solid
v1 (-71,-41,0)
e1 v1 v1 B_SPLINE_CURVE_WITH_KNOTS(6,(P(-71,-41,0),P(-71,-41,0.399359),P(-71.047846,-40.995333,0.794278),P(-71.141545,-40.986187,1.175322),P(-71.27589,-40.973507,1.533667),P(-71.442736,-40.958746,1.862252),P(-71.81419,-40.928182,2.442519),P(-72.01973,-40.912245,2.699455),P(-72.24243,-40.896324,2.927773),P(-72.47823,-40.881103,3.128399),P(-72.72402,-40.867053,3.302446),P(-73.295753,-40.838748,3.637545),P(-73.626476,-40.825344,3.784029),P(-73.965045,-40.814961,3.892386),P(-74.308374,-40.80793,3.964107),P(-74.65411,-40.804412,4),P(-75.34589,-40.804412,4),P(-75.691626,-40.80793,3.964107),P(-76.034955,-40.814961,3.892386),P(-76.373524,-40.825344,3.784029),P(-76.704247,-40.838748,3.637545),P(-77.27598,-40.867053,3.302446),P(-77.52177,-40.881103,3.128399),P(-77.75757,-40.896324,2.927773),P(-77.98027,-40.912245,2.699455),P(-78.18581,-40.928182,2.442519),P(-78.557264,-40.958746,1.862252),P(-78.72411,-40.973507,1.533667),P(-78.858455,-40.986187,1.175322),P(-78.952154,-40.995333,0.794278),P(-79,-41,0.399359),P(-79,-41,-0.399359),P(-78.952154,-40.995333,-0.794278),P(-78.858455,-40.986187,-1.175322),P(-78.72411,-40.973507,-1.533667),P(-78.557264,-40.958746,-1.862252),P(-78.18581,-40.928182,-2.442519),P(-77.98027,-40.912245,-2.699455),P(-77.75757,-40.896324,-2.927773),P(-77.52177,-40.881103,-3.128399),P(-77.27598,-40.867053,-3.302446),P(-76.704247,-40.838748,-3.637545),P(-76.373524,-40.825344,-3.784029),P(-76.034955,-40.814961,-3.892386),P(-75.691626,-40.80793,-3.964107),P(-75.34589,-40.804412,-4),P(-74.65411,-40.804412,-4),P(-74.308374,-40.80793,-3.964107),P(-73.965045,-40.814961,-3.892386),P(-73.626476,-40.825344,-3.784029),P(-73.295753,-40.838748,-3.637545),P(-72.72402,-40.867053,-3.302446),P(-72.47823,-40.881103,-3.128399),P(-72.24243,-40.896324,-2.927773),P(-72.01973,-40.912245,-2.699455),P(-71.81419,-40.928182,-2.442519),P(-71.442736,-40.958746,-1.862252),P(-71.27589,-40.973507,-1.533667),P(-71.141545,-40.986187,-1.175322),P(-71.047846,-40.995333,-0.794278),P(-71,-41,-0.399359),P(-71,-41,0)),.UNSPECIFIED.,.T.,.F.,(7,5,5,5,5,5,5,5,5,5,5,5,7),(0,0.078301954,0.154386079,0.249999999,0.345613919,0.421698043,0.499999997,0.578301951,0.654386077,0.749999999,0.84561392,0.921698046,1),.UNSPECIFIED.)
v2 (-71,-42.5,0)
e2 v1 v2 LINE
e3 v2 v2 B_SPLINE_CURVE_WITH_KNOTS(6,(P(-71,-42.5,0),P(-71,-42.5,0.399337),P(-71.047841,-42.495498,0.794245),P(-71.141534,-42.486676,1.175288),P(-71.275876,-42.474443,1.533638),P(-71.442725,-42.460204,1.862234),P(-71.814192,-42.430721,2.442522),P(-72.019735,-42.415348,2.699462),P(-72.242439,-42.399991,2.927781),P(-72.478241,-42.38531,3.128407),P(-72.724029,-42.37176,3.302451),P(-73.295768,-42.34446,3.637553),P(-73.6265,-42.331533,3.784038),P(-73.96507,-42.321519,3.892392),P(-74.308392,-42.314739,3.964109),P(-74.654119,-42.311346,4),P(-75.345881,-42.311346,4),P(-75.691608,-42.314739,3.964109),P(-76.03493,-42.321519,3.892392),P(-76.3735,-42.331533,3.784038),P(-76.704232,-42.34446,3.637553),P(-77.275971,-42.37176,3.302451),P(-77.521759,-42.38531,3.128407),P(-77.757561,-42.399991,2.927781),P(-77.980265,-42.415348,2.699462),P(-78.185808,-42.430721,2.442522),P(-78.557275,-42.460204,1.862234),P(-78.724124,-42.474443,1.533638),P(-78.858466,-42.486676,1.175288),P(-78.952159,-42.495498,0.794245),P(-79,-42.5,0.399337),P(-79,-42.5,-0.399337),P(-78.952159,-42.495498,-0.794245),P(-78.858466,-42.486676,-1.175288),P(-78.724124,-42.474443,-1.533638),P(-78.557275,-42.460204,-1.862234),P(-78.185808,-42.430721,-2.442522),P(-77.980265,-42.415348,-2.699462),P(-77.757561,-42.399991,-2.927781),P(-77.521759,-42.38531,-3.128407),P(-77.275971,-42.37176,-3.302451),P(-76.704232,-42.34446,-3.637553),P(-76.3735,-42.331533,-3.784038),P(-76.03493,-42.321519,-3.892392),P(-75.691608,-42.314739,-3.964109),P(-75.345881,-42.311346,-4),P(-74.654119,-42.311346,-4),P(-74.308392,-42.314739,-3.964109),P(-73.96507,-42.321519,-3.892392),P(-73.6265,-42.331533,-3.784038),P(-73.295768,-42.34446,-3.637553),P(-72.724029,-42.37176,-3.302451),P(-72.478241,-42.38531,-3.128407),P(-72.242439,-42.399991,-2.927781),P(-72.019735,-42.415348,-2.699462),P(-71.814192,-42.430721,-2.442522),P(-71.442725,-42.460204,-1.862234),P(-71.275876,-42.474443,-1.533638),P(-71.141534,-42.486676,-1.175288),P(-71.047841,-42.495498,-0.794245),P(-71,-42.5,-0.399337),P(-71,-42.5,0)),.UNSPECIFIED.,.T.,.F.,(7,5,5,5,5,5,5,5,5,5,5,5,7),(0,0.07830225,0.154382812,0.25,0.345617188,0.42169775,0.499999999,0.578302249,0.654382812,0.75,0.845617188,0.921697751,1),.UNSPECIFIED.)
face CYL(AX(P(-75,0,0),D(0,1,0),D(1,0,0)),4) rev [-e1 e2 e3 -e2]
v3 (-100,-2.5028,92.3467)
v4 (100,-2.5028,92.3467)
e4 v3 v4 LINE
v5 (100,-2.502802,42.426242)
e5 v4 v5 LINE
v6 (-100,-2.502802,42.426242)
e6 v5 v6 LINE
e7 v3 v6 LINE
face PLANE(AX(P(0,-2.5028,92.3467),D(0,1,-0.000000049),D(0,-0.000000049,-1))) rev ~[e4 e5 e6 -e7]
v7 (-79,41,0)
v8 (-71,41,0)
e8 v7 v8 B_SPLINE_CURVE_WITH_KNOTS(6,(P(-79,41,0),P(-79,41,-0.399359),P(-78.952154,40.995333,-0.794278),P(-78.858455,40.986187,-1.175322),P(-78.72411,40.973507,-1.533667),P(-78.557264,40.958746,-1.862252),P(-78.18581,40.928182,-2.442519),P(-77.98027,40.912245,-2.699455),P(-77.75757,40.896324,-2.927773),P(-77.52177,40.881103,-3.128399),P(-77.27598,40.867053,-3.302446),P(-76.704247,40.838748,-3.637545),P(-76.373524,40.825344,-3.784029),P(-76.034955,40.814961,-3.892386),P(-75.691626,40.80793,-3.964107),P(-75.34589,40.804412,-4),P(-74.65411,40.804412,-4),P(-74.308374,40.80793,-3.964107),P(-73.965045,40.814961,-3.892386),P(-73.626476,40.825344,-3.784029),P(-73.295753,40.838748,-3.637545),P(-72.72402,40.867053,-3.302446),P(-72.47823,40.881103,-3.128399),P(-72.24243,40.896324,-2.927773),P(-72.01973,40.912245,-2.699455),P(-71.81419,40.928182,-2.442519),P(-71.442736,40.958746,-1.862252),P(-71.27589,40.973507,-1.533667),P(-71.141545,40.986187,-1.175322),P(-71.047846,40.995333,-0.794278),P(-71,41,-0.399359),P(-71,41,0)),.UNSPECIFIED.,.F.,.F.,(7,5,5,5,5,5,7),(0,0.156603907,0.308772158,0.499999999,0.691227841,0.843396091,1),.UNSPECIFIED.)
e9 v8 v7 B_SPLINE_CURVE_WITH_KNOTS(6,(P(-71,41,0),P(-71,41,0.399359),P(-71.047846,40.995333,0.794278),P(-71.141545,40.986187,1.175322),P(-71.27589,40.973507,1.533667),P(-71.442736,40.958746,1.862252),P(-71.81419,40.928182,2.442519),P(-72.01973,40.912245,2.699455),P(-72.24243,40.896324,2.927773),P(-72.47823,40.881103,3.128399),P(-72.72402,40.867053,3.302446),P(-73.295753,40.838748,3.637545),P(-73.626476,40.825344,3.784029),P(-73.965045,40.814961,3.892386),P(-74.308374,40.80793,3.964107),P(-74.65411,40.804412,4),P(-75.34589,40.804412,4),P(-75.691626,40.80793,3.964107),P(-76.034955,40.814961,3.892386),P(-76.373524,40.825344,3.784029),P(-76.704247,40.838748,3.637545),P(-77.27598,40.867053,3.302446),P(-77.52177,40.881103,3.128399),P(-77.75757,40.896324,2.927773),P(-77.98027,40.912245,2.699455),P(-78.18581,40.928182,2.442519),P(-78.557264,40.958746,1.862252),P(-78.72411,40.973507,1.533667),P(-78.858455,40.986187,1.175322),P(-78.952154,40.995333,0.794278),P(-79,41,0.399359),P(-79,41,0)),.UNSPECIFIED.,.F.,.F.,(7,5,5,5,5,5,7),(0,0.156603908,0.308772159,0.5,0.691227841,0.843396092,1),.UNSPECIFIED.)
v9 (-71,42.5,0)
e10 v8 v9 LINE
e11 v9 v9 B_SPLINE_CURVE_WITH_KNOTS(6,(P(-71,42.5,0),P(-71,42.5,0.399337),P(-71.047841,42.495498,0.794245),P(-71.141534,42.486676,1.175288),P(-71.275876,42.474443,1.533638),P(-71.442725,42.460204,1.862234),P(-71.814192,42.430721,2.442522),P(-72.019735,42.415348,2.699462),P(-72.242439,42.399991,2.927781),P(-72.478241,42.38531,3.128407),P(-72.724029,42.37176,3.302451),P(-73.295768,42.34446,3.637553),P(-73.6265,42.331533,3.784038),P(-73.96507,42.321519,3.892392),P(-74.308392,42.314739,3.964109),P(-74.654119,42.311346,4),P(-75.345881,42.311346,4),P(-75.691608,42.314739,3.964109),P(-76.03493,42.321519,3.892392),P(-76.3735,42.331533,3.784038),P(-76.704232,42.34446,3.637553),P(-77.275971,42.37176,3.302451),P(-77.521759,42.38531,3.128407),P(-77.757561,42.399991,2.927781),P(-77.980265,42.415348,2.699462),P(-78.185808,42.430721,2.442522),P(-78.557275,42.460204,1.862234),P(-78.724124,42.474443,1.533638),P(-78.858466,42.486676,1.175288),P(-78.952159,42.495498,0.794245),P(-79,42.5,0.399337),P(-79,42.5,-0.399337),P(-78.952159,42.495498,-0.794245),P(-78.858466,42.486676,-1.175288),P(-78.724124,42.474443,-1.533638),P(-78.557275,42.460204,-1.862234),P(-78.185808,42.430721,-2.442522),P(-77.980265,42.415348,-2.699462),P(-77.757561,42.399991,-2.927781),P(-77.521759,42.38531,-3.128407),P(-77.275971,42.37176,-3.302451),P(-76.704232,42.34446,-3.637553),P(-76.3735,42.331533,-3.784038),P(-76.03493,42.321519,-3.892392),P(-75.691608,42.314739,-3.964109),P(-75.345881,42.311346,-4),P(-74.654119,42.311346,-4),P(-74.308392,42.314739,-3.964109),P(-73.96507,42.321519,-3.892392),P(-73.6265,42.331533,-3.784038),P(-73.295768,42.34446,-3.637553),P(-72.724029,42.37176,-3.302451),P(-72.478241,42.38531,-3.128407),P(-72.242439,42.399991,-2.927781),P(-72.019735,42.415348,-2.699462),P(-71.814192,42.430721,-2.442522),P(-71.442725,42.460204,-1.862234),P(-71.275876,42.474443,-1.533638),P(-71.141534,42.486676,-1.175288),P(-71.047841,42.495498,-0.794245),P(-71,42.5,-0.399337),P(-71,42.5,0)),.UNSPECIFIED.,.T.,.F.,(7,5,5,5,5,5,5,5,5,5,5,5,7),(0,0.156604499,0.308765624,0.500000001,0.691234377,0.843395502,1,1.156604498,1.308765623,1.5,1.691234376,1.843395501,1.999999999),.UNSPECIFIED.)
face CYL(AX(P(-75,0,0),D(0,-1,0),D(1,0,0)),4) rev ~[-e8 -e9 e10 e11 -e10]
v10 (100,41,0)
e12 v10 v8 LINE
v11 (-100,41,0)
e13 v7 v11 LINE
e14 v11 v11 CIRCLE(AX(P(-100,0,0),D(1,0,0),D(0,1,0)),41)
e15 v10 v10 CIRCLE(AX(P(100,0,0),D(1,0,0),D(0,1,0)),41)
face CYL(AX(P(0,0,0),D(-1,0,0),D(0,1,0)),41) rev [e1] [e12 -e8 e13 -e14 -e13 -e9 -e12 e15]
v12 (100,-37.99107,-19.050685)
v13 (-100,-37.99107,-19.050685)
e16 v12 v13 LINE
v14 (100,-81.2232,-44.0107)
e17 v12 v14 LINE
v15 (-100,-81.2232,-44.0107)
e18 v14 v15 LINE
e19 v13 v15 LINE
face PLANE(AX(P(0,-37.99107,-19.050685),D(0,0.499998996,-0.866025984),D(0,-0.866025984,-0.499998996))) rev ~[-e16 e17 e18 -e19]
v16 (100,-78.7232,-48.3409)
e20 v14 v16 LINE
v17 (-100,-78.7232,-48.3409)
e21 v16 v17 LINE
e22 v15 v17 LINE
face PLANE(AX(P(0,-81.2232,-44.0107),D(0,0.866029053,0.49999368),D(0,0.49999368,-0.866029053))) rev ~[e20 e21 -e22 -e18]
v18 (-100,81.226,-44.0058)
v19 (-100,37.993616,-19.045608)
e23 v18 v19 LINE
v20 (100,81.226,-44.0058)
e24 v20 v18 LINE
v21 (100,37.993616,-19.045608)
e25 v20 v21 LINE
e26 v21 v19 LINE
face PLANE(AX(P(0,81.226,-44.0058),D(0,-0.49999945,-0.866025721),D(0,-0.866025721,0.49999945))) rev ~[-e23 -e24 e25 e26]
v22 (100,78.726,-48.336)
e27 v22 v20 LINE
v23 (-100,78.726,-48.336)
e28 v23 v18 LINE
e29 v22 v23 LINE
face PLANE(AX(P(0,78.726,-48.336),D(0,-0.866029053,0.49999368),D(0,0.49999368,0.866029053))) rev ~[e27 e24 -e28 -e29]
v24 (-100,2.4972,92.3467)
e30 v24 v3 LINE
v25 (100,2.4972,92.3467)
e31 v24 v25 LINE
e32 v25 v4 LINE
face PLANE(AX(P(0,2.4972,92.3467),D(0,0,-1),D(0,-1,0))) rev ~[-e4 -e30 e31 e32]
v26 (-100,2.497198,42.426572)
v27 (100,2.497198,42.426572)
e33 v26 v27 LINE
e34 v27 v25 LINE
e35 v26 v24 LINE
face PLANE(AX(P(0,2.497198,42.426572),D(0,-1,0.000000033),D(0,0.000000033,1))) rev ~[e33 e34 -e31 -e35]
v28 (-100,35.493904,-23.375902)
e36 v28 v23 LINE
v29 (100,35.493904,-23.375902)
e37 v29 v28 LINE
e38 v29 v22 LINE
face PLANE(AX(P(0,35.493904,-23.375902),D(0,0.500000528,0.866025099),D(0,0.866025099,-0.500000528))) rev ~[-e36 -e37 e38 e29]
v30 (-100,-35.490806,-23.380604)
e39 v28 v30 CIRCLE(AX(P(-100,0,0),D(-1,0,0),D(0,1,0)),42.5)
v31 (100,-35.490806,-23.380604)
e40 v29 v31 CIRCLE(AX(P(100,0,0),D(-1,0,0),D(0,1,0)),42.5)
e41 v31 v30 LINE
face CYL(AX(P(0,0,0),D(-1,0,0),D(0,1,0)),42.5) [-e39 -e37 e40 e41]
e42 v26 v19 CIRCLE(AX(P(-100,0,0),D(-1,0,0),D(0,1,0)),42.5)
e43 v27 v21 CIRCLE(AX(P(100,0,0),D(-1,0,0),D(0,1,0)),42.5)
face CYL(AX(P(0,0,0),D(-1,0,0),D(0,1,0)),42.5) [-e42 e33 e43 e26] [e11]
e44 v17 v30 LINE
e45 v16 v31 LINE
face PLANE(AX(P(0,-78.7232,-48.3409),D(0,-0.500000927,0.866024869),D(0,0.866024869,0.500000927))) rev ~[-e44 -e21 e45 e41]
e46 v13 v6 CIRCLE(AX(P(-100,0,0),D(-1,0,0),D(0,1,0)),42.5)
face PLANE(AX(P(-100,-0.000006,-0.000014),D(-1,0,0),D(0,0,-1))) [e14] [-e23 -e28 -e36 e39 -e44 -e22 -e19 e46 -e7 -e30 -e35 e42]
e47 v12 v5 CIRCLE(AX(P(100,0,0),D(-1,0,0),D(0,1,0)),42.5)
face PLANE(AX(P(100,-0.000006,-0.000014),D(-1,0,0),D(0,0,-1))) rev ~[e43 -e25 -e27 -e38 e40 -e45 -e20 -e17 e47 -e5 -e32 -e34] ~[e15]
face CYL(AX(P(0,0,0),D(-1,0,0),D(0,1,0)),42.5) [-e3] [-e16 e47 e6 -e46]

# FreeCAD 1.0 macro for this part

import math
import FreeCAD as App
import Part
import Sketcher
Q = App.Units.Quantity

doc = App.newDocument("Part")
body = doc.addObject("PartDesign::Body", "Body")

# Sketch on YZ plane
sketch1 = body.newObject("Sketcher::SketchObject", "Sketch")
sketch1.AttachmentSupport = (doc.getObject("YZ_Plane"), [""])
sketch1.MapMode = "FlatFace"
sketch1.addGeometry(Part.ArcOfCircle(Part.Circle(App.Vector(0, 0, 0), App.Vector(0, 0, 1), 42.499996), math.radians(-26.623895), math.radians(86.631497)), False)
sketch1.addGeometry(Part.LineSegment(App.Vector(2.4972, 42.4266, 0), App.Vector(2.4972, 92.3467, 0)), False)
sketch1.addGeometry(Part.LineSegment(App.Vector(2.4972, 92.3467, 0), App.Vector(-2.5028, 92.3467, 0)), False)
sketch1.addGeometry(Part.LineSegment(App.Vector(-2.5028, 92.3467, 0), App.Vector(-2.5028, 42.4262, 0)), False)
sketch1.addGeometry(Part.ArcOfCircle(Part.Circle(App.Vector(0, 0, 0), App.Vector(0, 0, 1), 42.499996), math.radians(93.376071), math.radians(206.631552)), False)
sketch1.addGeometry(Part.LineSegment(App.Vector(-37.9911, -19.0507, 0), App.Vector(-81.2232, -44.0107, 0)), False)
sketch1.addGeometry(Part.LineSegment(App.Vector(-81.2232, -44.0107, 0), App.Vector(-78.7232, -48.3409, 0)), False)
sketch1.addGeometry(Part.LineSegment(App.Vector(-78.7232, -48.3409, 0), App.Vector(-35.4908, -23.3806, 0)), False)
sketch1.addGeometry(Part.ArcOfCircle(Part.Circle(App.Vector(0, 0, 0), App.Vector(0, 0, 1), 42.499996), math.radians(-146.62394), math.radians(-33.36847)), False)
sketch1.addGeometry(Part.LineSegment(App.Vector(35.4939, -23.3759, 0), App.Vector(78.726, -48.336, 0)), False)
sketch1.addGeometry(Part.LineSegment(App.Vector(78.726, -48.336, 0), App.Vector(81.226, -44.0058, 0)), False)
sketch1.addGeometry(Part.LineSegment(App.Vector(81.226, -44.0058, 0), App.Vector(37.9936, -19.0456, 0)), False)
sketch1.addConstraint(Sketcher.Constraint("Coincident", 0, 2, 1, 1))
sketch1.addConstraint(Sketcher.Constraint("Coincident", 1, 2, 2, 1))
sketch1.addConstraint(Sketcher.Constraint("Coincident", 2, 2, 3, 1))
sketch1.addConstraint(Sketcher.Constraint("Coincident", 3, 2, 4, 1))
sketch1.addConstraint(Sketcher.Constraint("Coincident", 4, 2, 5, 1))
sketch1.addConstraint(Sketcher.Constraint("Coincident", 5, 2, 6, 1))
sketch1.addConstraint(Sketcher.Constraint("Coincident", 6, 2, 7, 1))
sketch1.addConstraint(Sketcher.Constraint("Coincident", 7, 2, 8, 1))
sketch1.addConstraint(Sketcher.Constraint("Coincident", 8, 2, 9, 1))
sketch1.addConstraint(Sketcher.Constraint("Coincident", 9, 2, 10, 1))
sketch1.addConstraint(Sketcher.Constraint("Coincident", 10, 2, 11, 1))
sketch1.addConstraint(Sketcher.Constraint("Coincident", 11, 2, 0, 1))
sketch1.addConstraint(Sketcher.Constraint("Vertical", 1))
sketch1.addConstraint(Sketcher.Constraint("Horizontal", 2))
sketch1.addConstraint(Sketcher.Constraint("Vertical", 3))
sketch1.addConstraint(Sketcher.Constraint("Coincident", 0, 3, -1, 1))
sketch1.addConstraint(Sketcher.Constraint("Coincident", 4, 3, -1, 1))
sketch1.addConstraint(Sketcher.Constraint("Coincident", 8, 3, -1, 1))
sketch1.addConstraint(Sketcher.Constraint("Equal", 0, 4))
sketch1.addConstraint(Sketcher.Constraint("Equal", 4, 8))
sketch1.addConstraint(Sketcher.Constraint("Perpendicular", 5, 6))
sketch1.addConstraint(Sketcher.Constraint("Perpendicular", 6, 7))
sketch1.addConstraint(Sketcher.Constraint("Perpendicular", 9, 10))
sketch1.addConstraint(Sketcher.Constraint("Perpendicular", 10, 11))
sketch1.addConstraint(Sketcher.Constraint("Equal", 5, 9))
sketch1.addConstraint(Sketcher.Constraint("Equal", 6, 10))
sketch1.addConstraint(Sketcher.Constraint("Equal", 7, 11))
sketch1.addConstraint(Sketcher.Constraint("Radius", 0, Q("42.5 mm")))
sketch1.addConstraint(Sketcher.Constraint("DistanceX", 2, 2, 2, 1, Q("5 mm")))
sketch1.addConstraint(Sketcher.Constraint("Angle", 5, Q("-150 deg")))
sketch1.addConstraint(Sketcher.Constraint("Angle", 9, Q("-30 deg")))
sketch1.addConstraint(Sketcher.Constraint("Distance", 6, Q("5 mm")))
sketch1.addConstraint(Sketcher.Constraint("DistanceY", 1, 1, 1, 2, Q("49.92 mm")))
sketch1.addConstraint(Sketcher.Constraint("Distance", 5, Q("49.92 mm")))
sketch1.addConstraint(Sketcher.Constraint("DistanceY", 3, 2, 3, 1, Q("49.9205 mm")))
sketch1.addConstraint(Sketcher.Constraint("DistanceX", 4, 2, -1, 1, Q("37.991 mm")))
pad1 = body.newObject("PartDesign::Pad", "Pad")
pad1.Profile = sketch1
pad1.Length = 200
pad1.Midplane = True

# Sketch on YZ plane
sketch2 = body.newObject("Sketcher::SketchObject", "Sketch001")
sketch2.AttachmentSupport = (doc.getObject("YZ_Plane"), [""])
sketch2.MapMode = "FlatFace"
sketch2.addGeometry(Part.Circle(App.Vector(0, 0, 0), App.Vector(0, 0, 1), 41), False)
sketch2.addConstraint(Sketcher.Constraint("Coincident", 0, 3, -1, 1))
sketch2.addConstraint(Sketcher.Constraint("Diameter", 0, Q("82 mm")))
pocket1 = body.newObject("PartDesign::Pocket", "Pocket")
pocket1.Profile = sketch2
pocket1.Length = 200
pocket1.Midplane = True

# Sketch on XZ plane
sketch3 = body.newObject("Sketcher::SketchObject", "Sketch002")
sketch3.AttachmentSupport = (doc.getObject("XZ_Plane"), [""])
sketch3.MapMode = "FlatFace"
sketch3.addGeometry(Part.Circle(App.Vector(-75, 0, 0), App.Vector(0, 0, 1), 4), False)
sketch3.addConstraint(Sketcher.Constraint("PointOnObject", 0, 3, -1))
sketch3.addConstraint(Sketcher.Constraint("Diameter", 0, Q("8 mm")))
sketch3.addConstraint(Sketcher.Constraint("DistanceX", 0, 3, -1, 1, Q("75 mm")))
pocket2 = body.newObject("PartDesign::Pocket", "Pocket001")
pocket2.Profile = sketch3
pocket2.Length = 90
pocket2.Midplane = True

doc.recompute()
